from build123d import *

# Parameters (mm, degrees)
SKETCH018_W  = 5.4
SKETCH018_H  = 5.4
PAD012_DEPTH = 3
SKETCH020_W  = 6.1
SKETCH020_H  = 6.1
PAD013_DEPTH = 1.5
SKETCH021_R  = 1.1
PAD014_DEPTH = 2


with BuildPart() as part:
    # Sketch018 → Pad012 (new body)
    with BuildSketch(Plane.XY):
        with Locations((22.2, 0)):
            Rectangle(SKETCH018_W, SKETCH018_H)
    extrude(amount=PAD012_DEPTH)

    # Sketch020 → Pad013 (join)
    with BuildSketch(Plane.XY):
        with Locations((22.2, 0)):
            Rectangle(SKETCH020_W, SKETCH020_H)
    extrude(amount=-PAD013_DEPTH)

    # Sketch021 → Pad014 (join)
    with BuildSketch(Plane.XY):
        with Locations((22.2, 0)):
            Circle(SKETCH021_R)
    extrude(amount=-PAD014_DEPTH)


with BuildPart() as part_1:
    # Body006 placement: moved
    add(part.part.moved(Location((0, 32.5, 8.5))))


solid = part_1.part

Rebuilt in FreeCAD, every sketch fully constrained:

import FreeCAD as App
import Part
import Sketcher

doc = App.newDocument("Part")
params = doc.addObject("Spreadsheet::Sheet", "Params")
for row, (alias, value) in enumerate([
    ("sketch1_width", "5.4 mm"),
    ("pad1_length", "3 mm"),
    ("sketch2_width", "6.1 mm"),
    ("pad2_length", "1.5 mm"),
    ("sketch3_diameter", "2.2 mm"),
    ("pad3_length", "2 mm"),
], start=1):
    params.set(f"A{row}", alias)
    params.set(f"B{row}", "=" + value)
    params.setAlias(f"B{row}", alias)

body = doc.addObject("PartDesign::Body", "Body")

# Sketch on XY plane
sketch1 = doc.addObject("Sketcher::SketchObject", "Sketch")
body.addObject(sketch1)
sketch1.AttachmentSupport = (doc.XY_Plane, [""])
sketch1.MapMode = "FlatFace"
sketch1.addGeometry(Part.LineSegment(App.Vector(20, 3, 0), App.Vector(20, -3, 0)), False)
sketch1.addGeometry(Part.LineSegment(App.Vector(20, -3, 0), App.Vector(25, -3, 0)), False)
sketch1.addGeometry(Part.LineSegment(App.Vector(25, -3, 0), App.Vector(25, 3, 0)), False)
sketch1.addGeometry(Part.LineSegment(App.Vector(25, 3, 0), App.Vector(20, 3, 0)), False)
sketch1.addConstraint(Sketcher.Constraint("Coincident", 0, 2, 1, 1))
sketch1.addConstraint(Sketcher.Constraint("Coincident", 1, 2, 2, 1))
sketch1.addConstraint(Sketcher.Constraint("Coincident", 2, 2, 3, 1))
sketch1.addConstraint(Sketcher.Constraint("Coincident", 3, 2, 0, 1))
sketch1.addConstraint(Sketcher.Constraint("Vertical", 0))
sketch1.addConstraint(Sketcher.Constraint("Horizontal", 1))
sketch1.addConstraint(Sketcher.Constraint("Vertical", 2))
sketch1.addConstraint(Sketcher.Constraint("Horizontal", 3))
sketch1.addConstraint(Sketcher.Constraint("Equal", 3, 0))
sketch1.addConstraint(Sketcher.Constraint("DistanceX", 1, 1, 1, 2, 5.4))
sketch1.addConstraint(Sketcher.Constraint("DistanceX", -1, 1, 0, 2, 19.5))
sketch1.addConstraint(Sketcher.Constraint("DistanceY", 0, 2, -1, 1, 2.7))
sketch1.setExpression("Constraints[9]", "Params.sketch1_width")
pad1 = doc.addObject("PartDesign::Pad", "Pad")
body.addObject(pad1)
pad1.Profile = sketch1
pad1.setExpression("Length", "Params.pad1_length")

# Sketch on XY plane
sketch2 = doc.addObject("Sketcher::SketchObject", "Sketch001")
body.addObject(sketch2)
sketch2.AttachmentSupport = (doc.XY_Plane, [""])
sketch2.MapMode = "FlatFace"
sketch2.addGeometry(Part.LineSegment(App.Vector(19, 3, 0), App.Vector(19, -3, 0)), False)
sketch2.addGeometry(Part.LineSegment(App.Vector(19, -3, 0), App.Vector(25, -3, 0)), False)
sketch2.addGeometry(Part.LineSegment(App.Vector(25, -3, 0), App.Vector(25, 3, 0)), False)
sketch2.addGeometry(Part.LineSegment(App.Vector(25, 3, 0), App.Vector(19, 3, 0)), False)
sketch2.addConstraint(Sketcher.Constraint("Coincident", 0, 2, 1, 1))
sketch2.addConstraint(Sketcher.Constraint("Coincident", 1, 2, 2, 1))
sketch2.addConstraint(Sketcher.Constraint("Coincident", 2, 2, 3, 1))
sketch2.addConstraint(Sketcher.Constraint("Coincident", 3, 2, 0, 1))
sketch2.addConstraint(Sketcher.Constraint("Vertical", 0))
sketch2.addConstraint(Sketcher.Constraint("Horizontal", 1))
sketch2.addConstraint(Sketcher.Constraint("Vertical", 2))
sketch2.addConstraint(Sketcher.Constraint("Horizontal", 3))
sketch2.addConstraint(Sketcher.Constraint("Equal", 3, 0))
sketch2.addConstraint(Sketcher.Constraint("DistanceX", 1, 1, 1, 2, 6.1))
sketch2.addConstraint(Sketcher.Constraint("DistanceX", -1, 1, 0, 2, 19.15))
sketch2.addConstraint(Sketcher.Constraint("DistanceY", 0, 2, -1, 1, 3.05))
sketch2.setExpression("Constraints[9]", "Params.sketch2_width")
pad2 = doc.addObject("PartDesign::Pad", "Pad001")
body.addObject(pad2)
pad2.Profile = sketch2
pad2.setExpression("Length", "Params.pad2_length")
pad2.Reversed = True

# Sketch on XY plane
sketch3 = doc.addObject("Sketcher::SketchObject", "Sketch002")
body.addObject(sketch3)
sketch3.AttachmentSupport = (doc.XY_Plane, [""])
sketch3.MapMode = "FlatFace"
sketch3.addGeometry(Part.Circle(App.Vector(22.2, 0, 0), App.Vector(0, 0, 1), 1.1), False)
sketch3.addConstraint(Sketcher.Constraint("PointOnObject", 0, 3, -1))
sketch3.addConstraint(Sketcher.Constraint("Diameter", 0, 2.2))
sketch3.addConstraint(Sketcher.Constraint("DistanceX", -1, 1, 0, 3, 22.2))
sketch3.setExpression("Constraints[1]", "Params.sketch3_diameter")
pad3 = doc.addObject("PartDesign::Pad", "Pad002")
body.addObject(pad3)
pad3.Profile = sketch3
pad3.setExpression("Length", "Params.pad3_length")
pad3.Reversed = True
body2 = doc.addObject("PartDesign::Body", "Body001")
doc.recompute()

body.Placement = App.Placement(App.Vector(0, 32.5, 8.5), App.Rotation(App.Vector(0, 0, 1), 0))
boolean = doc.addObject("PartDesign::Boolean", "Boolean")
body2.addObject(boolean)
boolean.Type = "Fuse"
boolean.addObjects([body])

doc.recompute()
